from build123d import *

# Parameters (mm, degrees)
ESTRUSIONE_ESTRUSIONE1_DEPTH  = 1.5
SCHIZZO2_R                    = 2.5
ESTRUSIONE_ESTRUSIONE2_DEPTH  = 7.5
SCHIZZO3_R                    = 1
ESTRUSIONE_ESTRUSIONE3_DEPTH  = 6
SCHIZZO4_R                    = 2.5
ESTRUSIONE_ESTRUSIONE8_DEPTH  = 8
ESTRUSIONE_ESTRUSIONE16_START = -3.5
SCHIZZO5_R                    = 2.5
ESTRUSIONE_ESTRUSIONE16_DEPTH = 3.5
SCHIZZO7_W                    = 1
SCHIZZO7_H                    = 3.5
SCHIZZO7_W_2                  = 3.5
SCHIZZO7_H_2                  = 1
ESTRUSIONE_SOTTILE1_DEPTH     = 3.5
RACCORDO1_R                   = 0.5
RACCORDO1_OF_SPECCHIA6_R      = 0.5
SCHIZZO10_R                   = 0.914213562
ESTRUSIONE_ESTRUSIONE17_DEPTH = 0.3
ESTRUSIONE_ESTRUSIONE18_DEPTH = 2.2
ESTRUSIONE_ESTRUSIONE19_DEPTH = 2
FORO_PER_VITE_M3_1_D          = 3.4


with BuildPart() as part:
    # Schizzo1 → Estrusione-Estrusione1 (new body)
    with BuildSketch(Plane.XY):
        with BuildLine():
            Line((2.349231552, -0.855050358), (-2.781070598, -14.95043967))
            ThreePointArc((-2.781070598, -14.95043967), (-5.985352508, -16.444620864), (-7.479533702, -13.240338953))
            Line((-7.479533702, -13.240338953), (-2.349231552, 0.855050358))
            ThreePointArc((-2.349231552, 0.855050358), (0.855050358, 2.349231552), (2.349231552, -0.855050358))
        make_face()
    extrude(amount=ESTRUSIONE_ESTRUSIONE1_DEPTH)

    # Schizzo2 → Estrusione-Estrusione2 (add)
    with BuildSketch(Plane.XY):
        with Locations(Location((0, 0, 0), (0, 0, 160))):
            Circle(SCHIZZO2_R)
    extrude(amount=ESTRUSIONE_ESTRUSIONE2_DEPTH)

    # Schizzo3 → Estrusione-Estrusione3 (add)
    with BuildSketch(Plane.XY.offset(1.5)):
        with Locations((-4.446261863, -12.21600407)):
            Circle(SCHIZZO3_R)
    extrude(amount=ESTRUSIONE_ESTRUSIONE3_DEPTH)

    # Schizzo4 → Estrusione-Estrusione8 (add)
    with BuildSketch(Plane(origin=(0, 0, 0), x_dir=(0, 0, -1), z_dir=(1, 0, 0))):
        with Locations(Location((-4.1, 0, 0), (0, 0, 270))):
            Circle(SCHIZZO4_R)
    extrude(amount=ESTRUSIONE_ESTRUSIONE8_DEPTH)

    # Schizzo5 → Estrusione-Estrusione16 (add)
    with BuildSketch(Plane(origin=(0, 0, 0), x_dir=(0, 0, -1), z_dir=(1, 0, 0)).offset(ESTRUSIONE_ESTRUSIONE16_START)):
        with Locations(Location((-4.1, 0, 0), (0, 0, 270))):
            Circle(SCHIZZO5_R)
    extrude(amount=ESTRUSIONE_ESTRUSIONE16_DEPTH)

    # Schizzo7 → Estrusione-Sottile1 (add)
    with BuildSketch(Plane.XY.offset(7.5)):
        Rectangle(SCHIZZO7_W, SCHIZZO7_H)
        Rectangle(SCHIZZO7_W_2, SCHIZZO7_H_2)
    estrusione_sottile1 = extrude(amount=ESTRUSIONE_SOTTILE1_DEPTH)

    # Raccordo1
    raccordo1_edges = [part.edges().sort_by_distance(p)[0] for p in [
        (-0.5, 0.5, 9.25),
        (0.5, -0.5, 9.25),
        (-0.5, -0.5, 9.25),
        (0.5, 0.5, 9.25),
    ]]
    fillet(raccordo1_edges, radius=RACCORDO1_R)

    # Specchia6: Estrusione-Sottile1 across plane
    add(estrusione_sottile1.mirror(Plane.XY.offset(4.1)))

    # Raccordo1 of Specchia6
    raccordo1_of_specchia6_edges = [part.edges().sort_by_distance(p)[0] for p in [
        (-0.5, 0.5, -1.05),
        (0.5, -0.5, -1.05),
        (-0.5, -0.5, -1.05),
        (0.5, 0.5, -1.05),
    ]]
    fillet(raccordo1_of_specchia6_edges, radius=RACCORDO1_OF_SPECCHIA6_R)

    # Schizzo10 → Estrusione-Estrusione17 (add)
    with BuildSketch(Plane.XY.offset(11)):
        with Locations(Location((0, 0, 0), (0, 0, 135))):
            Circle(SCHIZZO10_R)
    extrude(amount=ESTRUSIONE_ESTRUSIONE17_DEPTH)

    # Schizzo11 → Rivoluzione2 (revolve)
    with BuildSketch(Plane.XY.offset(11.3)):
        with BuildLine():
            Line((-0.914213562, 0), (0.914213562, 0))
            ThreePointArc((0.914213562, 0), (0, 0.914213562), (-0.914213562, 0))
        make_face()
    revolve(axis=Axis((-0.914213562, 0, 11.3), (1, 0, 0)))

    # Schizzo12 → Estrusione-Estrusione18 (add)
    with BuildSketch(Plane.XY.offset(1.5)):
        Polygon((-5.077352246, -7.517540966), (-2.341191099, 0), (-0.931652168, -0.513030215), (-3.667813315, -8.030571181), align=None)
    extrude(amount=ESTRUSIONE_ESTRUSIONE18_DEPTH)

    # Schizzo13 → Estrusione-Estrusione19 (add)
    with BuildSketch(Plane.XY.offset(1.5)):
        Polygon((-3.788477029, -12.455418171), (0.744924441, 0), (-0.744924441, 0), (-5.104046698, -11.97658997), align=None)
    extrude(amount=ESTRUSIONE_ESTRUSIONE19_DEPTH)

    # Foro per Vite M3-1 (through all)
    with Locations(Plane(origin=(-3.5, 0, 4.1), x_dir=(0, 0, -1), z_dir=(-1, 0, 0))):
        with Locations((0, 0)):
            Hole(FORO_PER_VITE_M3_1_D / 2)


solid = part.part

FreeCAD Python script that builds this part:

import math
import FreeCAD as App
import Part
import Sketcher
Q = App.Units.Quantity


def edges_at(feature, points):
    """Names of the edges that pass closest to the given points."""
    edges = feature.Shape.Edges
    near = lambda p: min(range(len(edges)), key=lambda i: edges[i].distToShape(Part.Vertex(*p))[0])
    return sorted({f"Edge{near(p) + 1}" for p in points})

doc = App.newDocument("Part")
body = doc.addObject("PartDesign::Body", "Body")

sketch1 = body.newObject("Sketcher::SketchObject", "Sketch")
sketch1.AttachmentSupport = (doc.getObject("XY_Plane"), [""])
sketch1.MapMode = "FlatFace"
sketch1.addGeometry(Part.LineSegment(App.Vector(-2.8, -15, 0), App.Vector(2.3, -0.9, 0)), False)
sketch1.addGeometry(Part.ArcOfCircle(Part.Circle(App.Vector(0, 0, 0), App.Vector(0, 0, 1), 2.5), math.radians(-20), math.radians(160)), False)
sketch1.addGeometry(Part.LineSegment(App.Vector(-2.3, 0.9, 0), App.Vector(-7.5, -13.2, 0)), False)
sketch1.addGeometry(Part.ArcOfCircle(Part.Circle(App.Vector(-5.1, -14.1, 0), App.Vector(0, 0, 1), 2.5), math.radians(160), math.radians(340)), False)
sketch1.addConstraint(Sketcher.Constraint("Tangent", 0, 2, 1, 1))
sketch1.addConstraint(Sketcher.Constraint("Tangent", 1, 2, 2, 1))
sketch1.addConstraint(Sketcher.Constraint("Tangent", 2, 2, 3, 1))
sketch1.addConstraint(Sketcher.Constraint("Tangent", 3, 2, 0, 1))
sketch1.addConstraint(Sketcher.Constraint("Coincident", 1, 3, -1, 1))
sketch1.addConstraint(Sketcher.Constraint("Equal", 1, 3))
sketch1.addConstraint(Sketcher.Constraint("Radius", 1, 2.5))
sketch1.addConstraint(Sketcher.Constraint("Angle", 0, Q("70 deg")))
sketch1.addConstraint(Sketcher.Constraint("Distance", 0, 15.0))
pad1 = body.newObject("PartDesign::Pad", "Pad")
pad1.Profile = sketch1
pad1.Length = 1.5

sketch2 = body.newObject("Sketcher::SketchObject", "Sketch001")
sketch2.AttachmentSupport = (doc.getObject("XY_Plane"), [""])
sketch2.MapMode = "FlatFace"
sketch2.addGeometry(Part.Circle(App.Vector(0, 0, 0), App.Vector(0, 0, 1), 2.5), False)
sketch2.addConstraint(Sketcher.Constraint("Coincident", 0, 3, -1, 1))
sketch2.addConstraint(Sketcher.Constraint("Diameter", 0, 5.0))
pad2 = body.newObject("PartDesign::Pad", "Pad001")
pad2.Profile = sketch2
pad2.Length = 7.5

sketch3 = body.newObject("Sketcher::SketchObject", "Sketch002")
sketch3.AttachmentSupport = (doc.getObject("XY_Plane"), [""])
sketch3.MapMode = "FlatFace"
sketch3.AttachmentOffset = App.Placement(App.Vector(0, 0, 1.5), App.Rotation())
sketch3.addGeometry(Part.Circle(App.Vector(-4.4, -12.2, 0), App.Vector(0, 0, 1), 1), False)
sketch3.addConstraint(Sketcher.Constraint("Diameter", 0, 2.0))
sketch3.addConstraint(Sketcher.Constraint("DistanceX", 0, 3, -1, 1, 4.446262))
sketch3.addConstraint(Sketcher.Constraint("DistanceY", 0, 3, -1, 1, 12.216004))
pad3 = body.newObject("PartDesign::Pad", "Pad002")
pad3.Profile = sketch3
pad3.Length = 6

sketch4 = body.newObject("Sketcher::SketchObject", "Sketch003")
sketch4.AttachmentSupport = (doc.getObject("YZ_Plane"), [""])
sketch4.MapMode = "FlatFace"
sketch4.addGeometry(Part.Circle(App.Vector(0, 4.1, 0), App.Vector(0, 0, 1), 2.5), False)
sketch4.addConstraint(Sketcher.Constraint("PointOnObject", 0, 3, -2))
sketch4.addConstraint(Sketcher.Constraint("Diameter", 0, 5.0))
sketch4.addConstraint(Sketcher.Constraint("DistanceY", -1, 1, 0, 3, 4.1))
pad4 = body.newObject("PartDesign::Pad", "Pad003")
pad4.Profile = sketch4
pad4.Length = 8

sketch5 = body.newObject("Sketcher::SketchObject", "Sketch004")
sketch5.AttachmentSupport = (doc.getObject("YZ_Plane"), [""])
sketch5.MapMode = "FlatFace"
sketch5.AttachmentOffset = App.Placement(App.Vector(0, 0, -3.5), App.Rotation())
sketch5.addGeometry(Part.Circle(App.Vector(0, 4.1, 0), App.Vector(0, 0, 1), 2.5), False)
sketch5.addConstraint(Sketcher.Constraint("PointOnObject", 0, 3, -2))
sketch5.addConstraint(Sketcher.Constraint("Diameter", 0, 5.0))
sketch5.addConstraint(Sketcher.Constraint("DistanceY", -1, 1, 0, 3, 4.1))
pad5 = body.newObject("PartDesign::Pad", "Pad004")
pad5.Profile = sketch5
pad5.Length = 3.5

sketch6 = body.newObject("Sketcher::SketchObject", "Sketch005")
sketch6.AttachmentSupport = (doc.getObject("XY_Plane"), [""])
sketch6.MapMode = "FlatFace"
sketch6.AttachmentOffset = App.Placement(App.Vector(0, 0, 7.5), App.Rotation())
sketch6.addGeometry(Part.LineSegment(App.Vector(-0.5, -0.5, 0), App.Vector(-0.5, -1.8, 0)), False)
sketch6.addGeometry(Part.LineSegment(App.Vector(-0.5, -1.8, 0), App.Vector(0.5, -1.8, 0)), False)
sketch6.addGeometry(Part.LineSegment(App.Vector(0.5, -1.8, 0), App.Vector(0.5, -0.5, 0)), False)
sketch6.addGeometry(Part.LineSegment(App.Vector(0.5, -0.5, 0), App.Vector(1.8, -0.5, 0)), False)
sketch6.addGeometry(Part.LineSegment(App.Vector(1.8, -0.5, 0), App.Vector(1.8, 0.5, 0)), False)
sketch6.addGeometry(Part.LineSegment(App.Vector(1.8, 0.5, 0), App.Vector(0.5, 0.5, 0)), False)
sketch6.addGeometry(Part.LineSegment(App.Vector(0.5, 0.5, 0), App.Vector(0.5, 1.8, 0)), False)
sketch6.addGeometry(Part.LineSegment(App.Vector(0.5, 1.8, 0), App.Vector(-0.5, 1.8, 0)), False)
sketch6.addGeometry(Part.LineSegment(App.Vector(-0.5, 1.8, 0), App.Vector(-0.5, 0.5, 0)), False)
sketch6.addGeometry(Part.LineSegment(App.Vector(-0.5, 0.5, 0), App.Vector(-1.8, 0.5, 0)), False)
sketch6.addGeometry(Part.LineSegment(App.Vector(-1.8, 0.5, 0), App.Vector(-1.8, -0.5, 0)), False)
sketch6.addGeometry(Part.LineSegment(App.Vector(-1.8, -0.5, 0), App.Vector(-0.5, -0.5, 0)), False)
sketch6.addConstraint(Sketcher.Constraint("Coincident", 0, 2, 1, 1))
sketch6.addConstraint(Sketcher.Constraint("Coincident", 1, 2, 2, 1))
sketch6.addConstraint(Sketcher.Constraint("Coincident", 2, 2, 3, 1))
sketch6.addConstraint(Sketcher.Constraint("Coincident", 3, 2, 4, 1))
sketch6.addConstraint(Sketcher.Constraint("Coincident", 4, 2, 5, 1))
sketch6.addConstraint(Sketcher.Constraint("Coincident", 5, 2, 6, 1))
sketch6.addConstraint(Sketcher.Constraint("Coincident", 6, 2, 7, 1))
sketch6.addConstraint(Sketcher.Constraint("Coincident", 7, 2, 8, 1))
sketch6.addConstraint(Sketcher.Constraint("Coincident", 8, 2, 9, 1))
sketch6.addConstraint(Sketcher.Constraint("Coincident", 9, 2, 10, 1))
sketch6.addConstraint(Sketcher.Constraint("Coincident", 10, 2, 11, 1))
sketch6.addConstraint(Sketcher.Constraint("Coincident", 11, 2, 0, 1))
sketch6.addConstraint(Sketcher.Constraint("Vertical", 0))
sketch6.addConstraint(Sketcher.Constraint("Horizontal", 1))
sketch6.addConstraint(Sketcher.Constraint("Vertical", 2))
sketch6.addConstraint(Sketcher.Constraint("Horizontal", 3))
sketch6.addConstraint(Sketcher.Constraint("Vertical", 4))
sketch6.addConstraint(Sketcher.Constraint("Horizontal", 5))
sketch6.addConstraint(Sketcher.Constraint("Vertical", 6))
sketch6.addConstraint(Sketcher.Constraint("Horizontal", 7))
sketch6.addConstraint(Sketcher.Constraint("Vertical", 8))
sketch6.addConstraint(Sketcher.Constraint("Horizontal", 9))
sketch6.addConstraint(Sketcher.Constraint("Vertical", 10))
sketch6.addConstraint(Sketcher.Constraint("Horizontal", 11))
sketch6.addConstraint(Sketcher.Constraint("Symmetric", 0, 2, 6, 2, -1, 1))
sketch6.addConstraint(Sketcher.Constraint("Symmetric", 2, 2, 8, 2, -1, 1))
sketch6.addConstraint(Sketcher.Constraint("Symmetric", 4, 2, 10, 2, -1, 1))
sketch6.addConstraint(Sketcher.Constraint("Symmetric", 5, 2, 8, 2, -2))
sketch6.addConstraint(Sketcher.Constraint("Equal", 11, 0))
sketch6.addConstraint(Sketcher.Constraint("Equal", 7, 4))
sketch6.addConstraint(Sketcher.Constraint("DistanceX", 1, 1, 1, 2, 1.0))
sketch6.addConstraint(Sketcher.Constraint("DistanceX", 3, 1, 3, 2, 1.25))
pad6 = body.newObject("PartDesign::Pad", "Pad005")
pad6.Profile = sketch6
pad6.Length = 3.5
doc.recompute()

fillet = body.newObject("PartDesign::Fillet", "Fillet")
fillet.Base = (pad6, edges_at(pad6, [
    (-0.5, 0.5, 9.25),
    (0.5, -0.5, 9.25),
    (-0.5, -0.5, 9.25),
    (0.5, 0.5, 9.25),
]))
fillet.Radius = 0.5
doc.recompute()

datumplane = body.newObject("PartDesign::Plane", "DatumPlane")
datumplane.AttachmentSupport = (doc.getObject("XY_Plane"), [""])
datumplane.MapMode = "FlatFace"
datumplane.AttachmentOffset = App.Placement(App.Vector(0, 0, 4.1), App.Rotation())
mirrored = body.newObject("PartDesign::Mirrored", "Mirrored")
mirrored.Originals = [pad6]
mirrored.MirrorPlane = (datumplane, [""])
body.Tip = mirrored
doc.recompute()

fillet2 = body.newObject("PartDesign::Fillet", "Fillet001")
fillet2.Base = (mirrored, edges_at(mirrored, [
    (-0.5, 0.5, -1.4),
    (0.5, -0.5, -1.4),
    (-0.5, -0.5, -1.4),
    (0.5, 0.5, -1.4),
]))
fillet2.Radius = 0.5

sketch7 = body.newObject("Sketcher::SketchObject", "Sketch006")
sketch7.AttachmentSupport = (doc.getObject("XY_Plane"), [""])
sketch7.MapMode = "FlatFace"
sketch7.AttachmentOffset = App.Placement(App.Vector(0, 0, 11), App.Rotation())
sketch7.addGeometry(Part.Circle(App.Vector(0, 0, 0), App.Vector(0, 0, 1), 0.9), False)
sketch7.addConstraint(Sketcher.Constraint("Coincident", 0, 3, -1, 1))
sketch7.addConstraint(Sketcher.Constraint("Diameter", 0, 1.828427))
pad7 = body.newObject("PartDesign::Pad", "Pad006")
pad7.Profile = sketch7
pad7.Length = 0.3

sketch8 = body.newObject("Sketcher::SketchObject", "Sketch007")
sketch8.AttachmentSupport = (doc.getObject("XY_Plane"), [""])
sketch8.MapMode = "FlatFace"
sketch8.AttachmentOffset = App.Placement(App.Vector(0, 0, 11.3), App.Rotation())
sketch8.addGeometry(Part.LineSegment(App.Vector(-0.9, 0, 0), App.Vector(0.9, 0, 0)), False)
sketch8.addGeometry(Part.ArcOfCircle(Part.Circle(App.Vector(0, 0, 0), App.Vector(0, 0, 1), 0.9), math.radians(0), math.radians(180)), False)
sketch8.addConstraint(Sketcher.Constraint("Coincident", 0, 1, 1, 2))
sketch8.addConstraint(Sketcher.Constraint("Coincident", 1, 1, 0, 2))
sketch8.addConstraint(Sketcher.Constraint("Horizontal", 0))
sketch8.addConstraint(Sketcher.Constraint("Coincident", 1, 3, -1, 1))
sketch8.addConstraint(Sketcher.Constraint("PointOnObject", 0, 1, -1))
sketch8.addConstraint(Sketcher.Constraint("Radius", 1, 0.914214))
revolution = body.newObject("PartDesign::Revolution", "Revolution")
revolution.Profile = sketch8
revolution.ReferenceAxis = (sketch8, ["H_Axis"])
revolution.Angle = 360

sketch9 = body.newObject("Sketcher::SketchObject", "Sketch008")
sketch9.AttachmentSupport = (doc.getObject("XY_Plane"), [""])
sketch9.MapMode = "FlatFace"
sketch9.AttachmentOffset = App.Placement(App.Vector(0, 0, 1.5), App.Rotation())
sketch9.addGeometry(Part.LineSegment(App.Vector(-2.3, 0, 0), App.Vector(-5.1, -7.5, 0)), False)
sketch9.addGeometry(Part.LineSegment(App.Vector(-5.1, -7.5, 0), App.Vector(-3.7, -8, 0)), False)
sketch9.addGeometry(Part.LineSegment(App.Vector(-3.7, -8, 0), App.Vector(-0.9, -0.5, 0)), False)
sketch9.addGeometry(Part.LineSegment(App.Vector(-0.9, -0.5, 0), App.Vector(-2.3, 0, 0)), False)
sketch9.addConstraint(Sketcher.Constraint("Coincident", 0, 2, 1, 1))
sketch9.addConstraint(Sketcher.Constraint("Coincident", 1, 2, 2, 1))
sketch9.addConstraint(Sketcher.Constraint("Coincident", 2, 2, 3, 1))
sketch9.addConstraint(Sketcher.Constraint("Coincident", 3, 2, 0, 1))
sketch9.addConstraint(Sketcher.Constraint("PointOnObject", 3, 2, -1))
sketch9.addConstraint(Sketcher.Constraint("Perpendicular", 0, 1))
sketch9.addConstraint(Sketcher.Constraint("Perpendicular", 1, 2))
sketch9.addConstraint(Sketcher.Constraint("Perpendicular", 2, 3))
sketch9.addConstraint(Sketcher.Constraint("Angle", 0, Q("-110 deg")))
sketch9.addConstraint(Sketcher.Constraint("Distance", 0, 8.0))
sketch9.addConstraint(Sketcher.Constraint("Distance", 1, 1.5))
sketch9.addConstraint(Sketcher.Constraint("DistanceX", 3, 2, -1, 1, 2.341191))
pad8 = body.newObject("PartDesign::Pad", "Pad007")
pad8.Profile = sketch9
pad8.Length = 2.2

sketch10 = body.newObject("Sketcher::SketchObject", "Sketch009")
sketch10.AttachmentSupport = (doc.getObject("XY_Plane"), [""])
sketch10.MapMode = "FlatFace"
sketch10.AttachmentOffset = App.Placement(App.Vector(0, 0, 1.5), App.Rotation())
sketch10.addGeometry(Part.LineSegment(App.Vector(-3.8, -12.5, 0), App.Vector(0.7, 0, 0)), False)
sketch10.addGeometry(Part.LineSegment(App.Vector(0.7, 0, 0), App.Vector(-0.7, 0, 0)), False)
sketch10.addGeometry(Part.LineSegment(App.Vector(-0.7, 0, 0), App.Vector(-5.1, -12, 0)), False)
sketch10.addGeometry(Part.LineSegment(App.Vector(-5.1, -12, 0), App.Vector(-3.8, -12.5, 0)), False)
sketch10.addConstraint(Sketcher.Constraint("Coincident", 0, 2, 1, 1))
sketch10.addConstraint(Sketcher.Constraint("Coincident", 1, 2, 2, 1))
sketch10.addConstraint(Sketcher.Constraint("Coincident", 2, 2, 3, 1))
sketch10.addConstraint(Sketcher.Constraint("Coincident", 3, 2, 0, 1))
sketch10.addConstraint(Sketcher.Constraint("Horizontal", 1))
sketch10.addConstraint(Sketcher.Constraint("Symmetric", 0, 2, 1, 2, -1, 1))
sketch10.addConstraint(Sketcher.Constraint("Parallel", 0, 2))
sketch10.addConstraint(Sketcher.Constraint("Perpendicular", 2, 3))
sketch10.addConstraint(Sketcher.Constraint("Angle", 0, Q("70 deg")))
sketch10.addConstraint(Sketcher.Constraint("Distance", 3, 1.4))
sketch10.addConstraint(Sketcher.Constraint("DistanceX", 3, 2, 0, 2, 4.533401))
pad9 = body.newObject("PartDesign::Pad", "Pad008")
pad9.Profile = sketch10
pad9.Length = 2

sketch11 = body.newObject("Sketcher::SketchObject", "Sketch010")
sketch11.AttachmentSupport = (doc.getObject("YZ_Plane"), [""])
sketch11.MapMode = "FlatFace"
sketch11.AttachmentOffset = App.Placement(App.Vector(0, 0, -3.5), App.Rotation())
sketch11.addGeometry(Part.Circle(App.Vector(0, 4.1, 0), App.Vector(0, 0, 1), 1.7), False)
sketch11.addConstraint(Sketcher.Constraint("PointOnObject", 0, 3, -2))
sketch11.addConstraint(Sketcher.Constraint("Diameter", 0, 3.4))
sketch11.addConstraint(Sketcher.Constraint("DistanceY", -1, 1, 0, 3, 4.1))
doc.recompute()
hole = body.newObject("PartDesign::Hole", "Hole")
hole.Profile = sketch11
hole.ThreadType = "None"
hole.Diameter = 3.4
hole.DepthType = "ThroughAll"
hole.Reversed = True

doc.recompute()
